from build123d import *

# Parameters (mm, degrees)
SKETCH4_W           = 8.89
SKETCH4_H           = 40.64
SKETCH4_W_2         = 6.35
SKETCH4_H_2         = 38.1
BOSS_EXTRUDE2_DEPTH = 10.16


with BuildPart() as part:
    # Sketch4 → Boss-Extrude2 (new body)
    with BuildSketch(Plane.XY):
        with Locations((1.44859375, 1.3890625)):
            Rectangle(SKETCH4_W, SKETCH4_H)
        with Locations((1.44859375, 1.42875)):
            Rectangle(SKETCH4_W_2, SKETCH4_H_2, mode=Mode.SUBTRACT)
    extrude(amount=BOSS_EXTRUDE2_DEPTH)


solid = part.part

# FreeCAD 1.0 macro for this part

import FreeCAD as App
import Part
import Sketcher
from FreeCAD import Vector
Q = App.Units.Quantity


def add_polygon(sketch, points):
    """Adds a closed chain of lines whose ends are joined by coincident constraints."""
    first, n = sketch.GeometryCount, len(points)
    for a, b in zip(points, points[1:] + points[:1]):
        sketch.addGeometry(Part.LineSegment(App.Vector(*a, 0), App.Vector(*b, 0)), False)
    for i in range(n):
        sketch.addConstraint(Sketcher.Constraint("Coincident", first + i, 2, first + (i + 1) % n, 1))

doc = App.newDocument("Part")
body = doc.addObject("PartDesign::Body", "Body")

# Sketch on XY plane
sketch1 = body.newObject("Sketcher::SketchObject", "Sketch")
sketch1.AttachmentSupport = (doc.getObject("XY_Plane"), [""])
sketch1.MapMode = "FlatFace"
add_polygon(sketch1, [(-3, 22), (-3, -19), (6, -19), (6, 22)])  # lines 0-3
add_polygon(sketch1, [(5, -18), (-2, -18), (-2, 20), (5, 20)])  # lines 4-7
sketch1.addConstraint([
    Sketcher.Constraint("Vertical", 0),
    Sketcher.Constraint("Horizontal", 1),
    Sketcher.Constraint("Vertical", 2),
    Sketcher.Constraint("Horizontal", 3),
    Sketcher.Constraint("Horizontal", 4),
    Sketcher.Constraint("Vertical", 5),
    Sketcher.Constraint("Horizontal", 6),
    Sketcher.Constraint("Vertical", 7),
    Sketcher.Constraint("DistanceY", 0, 2, 0, 1, Q("1.6 in")),
    Sketcher.Constraint("DistanceY", 5, 1, 5, 2, Q("1.5 in")),
    Sketcher.Constraint("DistanceX", 1, 1, 1, 2, Q("0.35 in")),
    Sketcher.Constraint("DistanceX", 4, 2, 4, 1, Q("0.25 in")),
    Sketcher.Constraint("DistanceX", 4, 2, 1, 2, Q("0.3 in")),
    Sketcher.Constraint("DistanceY", 4, 2, -1, 1, 17.62125),
    Sketcher.Constraint("DistanceX", 0, 2, -1, 1, 2.996406),
    Sketcher.Constraint("DistanceY", 0, 2, -1, 1, 18.930937),
])
pad1 = body.newObject("PartDesign::Pad", "Pad")
pad1.Profile = sketch1
pad1.Length = Q("0.4 in")

doc.recompute()
